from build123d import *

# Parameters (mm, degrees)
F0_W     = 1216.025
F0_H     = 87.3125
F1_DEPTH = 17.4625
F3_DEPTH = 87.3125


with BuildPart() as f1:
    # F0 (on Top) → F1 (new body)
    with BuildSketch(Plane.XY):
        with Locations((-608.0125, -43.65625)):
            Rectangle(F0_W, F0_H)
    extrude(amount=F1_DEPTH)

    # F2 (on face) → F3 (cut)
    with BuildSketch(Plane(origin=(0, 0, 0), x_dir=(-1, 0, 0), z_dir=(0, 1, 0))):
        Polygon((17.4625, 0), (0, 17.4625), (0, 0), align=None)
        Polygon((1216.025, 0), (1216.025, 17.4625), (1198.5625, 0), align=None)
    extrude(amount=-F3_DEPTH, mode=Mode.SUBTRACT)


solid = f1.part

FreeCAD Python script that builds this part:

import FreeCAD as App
import Part
import Sketcher

V = App.Vector
Q = App.Units.Quantity

doc = App.newDocument("Part")
body = doc.addObject("PartDesign::Body", "Body")

sketch1 = body.newObject("Sketcher::SketchObject", "Sketch")
sketch1.AttachmentSupport = (doc.getObject("XY_Plane"), [""])
sketch1.MapMode = "FlatFace"
sketch1.addGeometry([
    Part.LineSegment(V(-1216, 0, 0), V(-1216, -87, 0)),
    Part.LineSegment(V(-1216, -87, 0), V(0, -87, 0)),
    Part.LineSegment(V(0, -87, 0), V(0, 0, 0)),
    Part.LineSegment(V(0, 0, 0), V(-1216, 0, 0)),
], False)
sketch1.addConstraint([
    Sketcher.Constraint("Coincident", 0, 2, 1, 1),
    Sketcher.Constraint("Coincident", 1, 2, 2, 1),
    Sketcher.Constraint("Coincident", 2, 2, 3, 1),
    Sketcher.Constraint("Coincident", 3, 2, 0, 1),
    Sketcher.Constraint("Vertical", 0),
    Sketcher.Constraint("Horizontal", 1),
    Sketcher.Constraint("Vertical", 2),
    Sketcher.Constraint("Horizontal", 3),
    Sketcher.Constraint("Coincident", 2, 2, -1, 1),
    Sketcher.Constraint("DistanceX", 1, 1, 1, 2, Q("47.875 in")),
    Sketcher.Constraint("DistanceY", 0, 2, 0, 1, Q("3.4375 in")),
])
pad1 = body.newObject("PartDesign::Pad", "Pad")
pad1.Profile = sketch1
pad1.Length = Q("0.6875 in")

sketch2 = body.newObject("Sketcher::SketchObject", "Sketch001")
sketch2.AttachmentSupport = (doc.getObject("XZ_Plane"), [""])
sketch2.MapMode = "FlatFace"
sketch2.addGeometry([
    Part.LineSegment(V(-17, 0, 0), V(0, 17, 0)),
    Part.LineSegment(V(0, 17, 0), V(0, 0, 0)),
    Part.LineSegment(V(0, 0, 0), V(-17, 0, 0)),
    Part.LineSegment(V(-1216, 0, 0), V(-1216, 17, 0)),
    Part.LineSegment(V(-1216, 17, 0), V(-1199, 0, 0)),
    Part.LineSegment(V(-1199, 0, 0), V(-1216, 0, 0)),
], False)
sketch2.addConstraint([
    Sketcher.Constraint("Coincident", 0, 2, 1, 1),
    Sketcher.Constraint("Coincident", 1, 2, 2, 1),
    Sketcher.Constraint("Coincident", 2, 2, 0, 1),
    Sketcher.Constraint("Coincident", 3, 2, 4, 1),
    Sketcher.Constraint("Coincident", 4, 2, 5, 1),
    Sketcher.Constraint("Coincident", 5, 2, 3, 1),
    Sketcher.Constraint("Vertical", 1),
    Sketcher.Constraint("Horizontal", 2),
    Sketcher.Constraint("Vertical", 3),
    Sketcher.Constraint("Horizontal", 5),
    Sketcher.Constraint("Coincident", 1, 2, -1, 1),
    Sketcher.Constraint("PointOnObject", 4, 2, -1),
    Sketcher.Constraint("Perpendicular", 0, 4),
    Sketcher.Constraint("Horizontal", 0, 2, 3, 2),
    Sketcher.Constraint("Equal", 2, 5),
    Sketcher.Constraint("DistanceX", 4, 2, 2, 2, Q("46.5 in")),
    Sketcher.Constraint("DistanceX", 2, 2, 2, 1, Q("0.6875 in")),
])
pocket1 = body.newObject("PartDesign::Pocket", "Pocket")
pocket1.Profile = sketch2
pocket1.Length = Q("3.4375 in")
pocket1.Reversed = True

doc.recompute()
